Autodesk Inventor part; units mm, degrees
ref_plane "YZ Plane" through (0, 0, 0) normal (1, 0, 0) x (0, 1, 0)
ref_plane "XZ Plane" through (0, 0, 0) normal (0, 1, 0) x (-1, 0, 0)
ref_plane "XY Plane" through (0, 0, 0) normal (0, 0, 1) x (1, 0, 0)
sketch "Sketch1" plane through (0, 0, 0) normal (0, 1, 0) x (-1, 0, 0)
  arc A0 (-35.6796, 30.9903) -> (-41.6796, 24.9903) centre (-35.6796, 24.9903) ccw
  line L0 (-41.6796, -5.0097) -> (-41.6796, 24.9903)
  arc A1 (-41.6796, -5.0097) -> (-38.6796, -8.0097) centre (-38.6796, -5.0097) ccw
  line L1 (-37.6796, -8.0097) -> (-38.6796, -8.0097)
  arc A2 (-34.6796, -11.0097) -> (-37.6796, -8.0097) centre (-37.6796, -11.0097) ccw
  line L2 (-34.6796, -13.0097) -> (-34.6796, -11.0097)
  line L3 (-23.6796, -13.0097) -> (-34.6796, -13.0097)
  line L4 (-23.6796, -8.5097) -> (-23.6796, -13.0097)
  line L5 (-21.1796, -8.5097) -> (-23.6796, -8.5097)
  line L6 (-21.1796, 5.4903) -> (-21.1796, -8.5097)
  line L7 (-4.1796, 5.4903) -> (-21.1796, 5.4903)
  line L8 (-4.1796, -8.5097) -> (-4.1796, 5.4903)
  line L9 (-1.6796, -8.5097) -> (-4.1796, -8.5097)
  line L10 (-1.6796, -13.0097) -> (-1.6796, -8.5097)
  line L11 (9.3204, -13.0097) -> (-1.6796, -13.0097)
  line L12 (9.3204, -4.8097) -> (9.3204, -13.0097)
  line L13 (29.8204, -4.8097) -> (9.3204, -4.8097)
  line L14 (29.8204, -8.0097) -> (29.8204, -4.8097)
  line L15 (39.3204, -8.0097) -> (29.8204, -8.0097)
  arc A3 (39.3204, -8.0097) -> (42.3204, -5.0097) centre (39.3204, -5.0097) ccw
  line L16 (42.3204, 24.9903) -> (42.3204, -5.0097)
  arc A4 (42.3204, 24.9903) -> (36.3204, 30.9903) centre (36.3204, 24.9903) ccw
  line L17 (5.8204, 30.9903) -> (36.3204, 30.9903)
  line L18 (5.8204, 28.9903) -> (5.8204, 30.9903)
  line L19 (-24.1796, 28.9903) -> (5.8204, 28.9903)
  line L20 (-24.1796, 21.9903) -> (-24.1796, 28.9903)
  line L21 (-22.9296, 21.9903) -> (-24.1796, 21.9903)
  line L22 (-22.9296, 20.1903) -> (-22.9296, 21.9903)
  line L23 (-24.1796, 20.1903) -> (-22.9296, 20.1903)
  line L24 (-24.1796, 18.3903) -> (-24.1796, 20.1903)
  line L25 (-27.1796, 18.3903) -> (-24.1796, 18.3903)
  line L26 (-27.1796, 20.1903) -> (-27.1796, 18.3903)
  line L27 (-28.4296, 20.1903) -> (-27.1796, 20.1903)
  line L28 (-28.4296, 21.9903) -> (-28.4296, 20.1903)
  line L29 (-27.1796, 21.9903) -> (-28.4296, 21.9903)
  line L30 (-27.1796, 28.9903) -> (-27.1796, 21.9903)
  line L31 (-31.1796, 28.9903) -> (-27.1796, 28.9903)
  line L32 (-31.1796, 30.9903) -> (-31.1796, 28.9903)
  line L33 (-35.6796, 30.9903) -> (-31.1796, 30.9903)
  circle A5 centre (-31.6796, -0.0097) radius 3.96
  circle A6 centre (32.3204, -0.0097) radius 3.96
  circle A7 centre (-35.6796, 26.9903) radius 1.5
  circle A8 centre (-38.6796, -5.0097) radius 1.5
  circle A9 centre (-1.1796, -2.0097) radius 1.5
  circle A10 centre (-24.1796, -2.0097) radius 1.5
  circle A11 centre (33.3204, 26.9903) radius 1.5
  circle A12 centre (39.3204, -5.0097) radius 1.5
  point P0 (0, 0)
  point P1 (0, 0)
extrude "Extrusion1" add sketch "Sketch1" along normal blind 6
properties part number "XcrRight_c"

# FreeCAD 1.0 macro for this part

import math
import FreeCAD as App
import Part
import Sketcher
from FreeCAD import Vector

doc = App.newDocument("Part")
body = doc.addObject("PartDesign::Body", "Body")

sketch1 = doc.addObject("Sketcher::SketchObject", "Sketch")
body.addObject(sketch1)
sketch1.AttachmentSupport = (doc.XZ_Plane, [""])
sketch1.MapMode = "FlatFace"
sketch1.addGeometry([
    Part.LineSegment(Vector(31.2, 31, 0), Vector(35.7, 31, 0)),
    Part.ArcOfCircle(Part.Circle(Vector(35.7, 25, 0), Vector(0, 0, 1), 6), math.radians(0), math.radians(90)),
    Part.LineSegment(Vector(41.7, 25, 0), Vector(41.7, -5, 0)),
    Part.ArcOfCircle(Part.Circle(Vector(38.7, -5, 0), Vector(0, 0, 1), 3), math.radians(-90), math.radians(0)),
    Part.LineSegment(Vector(38.7, -8, 0), Vector(37.7, -8, 0)),
    Part.ArcOfCircle(Part.Circle(Vector(37.7, -11, 0), Vector(0, 0, 1), 3), math.radians(90), math.radians(180)),
    Part.LineSegment(Vector(34.7, -11, 0), Vector(34.7, -13, 0)),
    Part.LineSegment(Vector(34.7, -13, 0), Vector(23.7, -13, 0)),
    Part.LineSegment(Vector(23.7, -13, 0), Vector(23.7, -8.5, 0)),
    Part.LineSegment(Vector(23.7, -8.5, 0), Vector(21.2, -8.5, 0)),
    Part.LineSegment(Vector(21.2, -8.5, 0), Vector(21.2, 5.5, 0)),
    Part.LineSegment(Vector(21.2, 5.5, 0), Vector(4.2, 5.5, 0)),
    Part.LineSegment(Vector(4.2, 5.5, 0), Vector(4.2, -8.5, 0)),
    Part.LineSegment(Vector(4.2, -8.5, 0), Vector(1.7, -8.5, 0)),
    Part.LineSegment(Vector(1.7, -8.5, 0), Vector(1.7, -13, 0)),
    Part.LineSegment(Vector(1.7, -13, 0), Vector(-9.3, -13, 0)),
    Part.LineSegment(Vector(-9.3, -13, 0), Vector(-9.3, -4.8, 0)),
    Part.LineSegment(Vector(-9.3, -4.8, 0), Vector(-29.8, -4.8, 0)),
    Part.LineSegment(Vector(-29.8, -4.8, 0), Vector(-29.8, -8, 0)),
    Part.LineSegment(Vector(-29.8, -8, 0), Vector(-39.3, -8, 0)),
    Part.ArcOfCircle(Part.Circle(Vector(-39.3, -5, 0), Vector(0, 0, 1), 3), math.radians(180), math.radians(270)),
    Part.LineSegment(Vector(-42.3, -5, 0), Vector(-42.3, 25, 0)),
    Part.ArcOfCircle(Part.Circle(Vector(-36.3, 25, 0), Vector(0, 0, 1), 6), math.radians(90), math.radians(180)),
    Part.LineSegment(Vector(-36.3, 31, 0), Vector(-5.8, 31, 0)),
    Part.LineSegment(Vector(-5.8, 31, 0), Vector(-5.8, 29, 0)),
    Part.LineSegment(Vector(-5.8, 29, 0), Vector(24.2, 29, 0)),
    Part.LineSegment(Vector(24.2, 29, 0), Vector(24.2, 22, 0)),
    Part.LineSegment(Vector(24.2, 22, 0), Vector(22.9, 22, 0)),
    Part.LineSegment(Vector(22.9, 22, 0), Vector(22.9, 20.2, 0)),
    Part.LineSegment(Vector(22.9, 20.2, 0), Vector(24.2, 20.2, 0)),
    Part.LineSegment(Vector(24.2, 20.2, 0), Vector(24.2, 18.4, 0)),
    Part.LineSegment(Vector(24.2, 18.4, 0), Vector(27.2, 18.4, 0)),
    Part.LineSegment(Vector(27.2, 18.4, 0), Vector(27.2, 20.2, 0)),
    Part.LineSegment(Vector(27.2, 20.2, 0), Vector(28.4, 20.2, 0)),
    Part.LineSegment(Vector(28.4, 20.2, 0), Vector(28.4, 22, 0)),
    Part.LineSegment(Vector(28.4, 22, 0), Vector(27.2, 22, 0)),
    Part.LineSegment(Vector(27.2, 22, 0), Vector(27.2, 29, 0)),
    Part.LineSegment(Vector(27.2, 29, 0), Vector(31.2, 29, 0)),
    Part.LineSegment(Vector(31.2, 29, 0), Vector(31.2, 31, 0)),
    Part.Circle(Vector(38.7, -5, 0), Vector(0, 0, 1), 1.5),
    Part.Circle(Vector(24.2, -2, 0), Vector(0, 0, 1), 1.5),
    Part.Circle(Vector(1.2, -2, 0), Vector(0, 0, 1), 1.5),
    Part.Circle(Vector(31.7, 0, 0), Vector(0, 0, 1), 4),
    Part.Circle(Vector(-39.3, -5, 0), Vector(0, 0, 1), 1.5),
    Part.Circle(Vector(-32.3, 0, 0), Vector(0, 0, 1), 4),
    Part.Circle(Vector(35.7, 27, 0), Vector(0, 0, 1), 1.5),
    Part.Circle(Vector(-33.3, 27, 0), Vector(0, 0, 1), 1.5),
], False)
sketch1.addConstraint([
    Sketcher.Constraint("Tangent", 0, 2, 1, 2),
    Sketcher.Constraint("Tangent", 1, 1, 2, 1),
    Sketcher.Constraint("Tangent", 2, 2, 3, 2),
    Sketcher.Constraint("Tangent", 3, 1, 4, 1),
    Sketcher.Constraint("Tangent", 4, 2, 5, 1),
    Sketcher.Constraint("Tangent", 5, 2, 6, 1),
    Sketcher.Constraint("Coincident", 6, 2, 7, 1),
    Sketcher.Constraint("Coincident", 7, 2, 8, 1),
    Sketcher.Constraint("Coincident", 8, 2, 9, 1),
    Sketcher.Constraint("Coincident", 9, 2, 10, 1),
    Sketcher.Constraint("Coincident", 10, 2, 11, 1),
    Sketcher.Constraint("Coincident", 11, 2, 12, 1),
    Sketcher.Constraint("Coincident", 12, 2, 13, 1),
    Sketcher.Constraint("Coincident", 13, 2, 14, 1),
    Sketcher.Constraint("Coincident", 14, 2, 15, 1),
    Sketcher.Constraint("Coincident", 15, 2, 16, 1),
    Sketcher.Constraint("Coincident", 16, 2, 17, 1),
    Sketcher.Constraint("Coincident", 17, 2, 18, 1),
    Sketcher.Constraint("Coincident", 18, 2, 19, 1),
    Sketcher.Constraint("Tangent", 19, 2, 20, 2),
    Sketcher.Constraint("Tangent", 20, 1, 21, 1),
    Sketcher.Constraint("Tangent", 21, 2, 22, 2),
    Sketcher.Constraint("Tangent", 22, 1, 23, 1),
    Sketcher.Constraint("Coincident", 23, 2, 24, 1),
    Sketcher.Constraint("Coincident", 24, 2, 25, 1),
    Sketcher.Constraint("Coincident", 25, 2, 26, 1),
    Sketcher.Constraint("Coincident", 26, 2, 27, 1),
    Sketcher.Constraint("Coincident", 27, 2, 28, 1),
    Sketcher.Constraint("Coincident", 28, 2, 29, 1),
    Sketcher.Constraint("Coincident", 29, 2, 30, 1),
    Sketcher.Constraint("Coincident", 30, 2, 31, 1),
    Sketcher.Constraint("Coincident", 31, 2, 32, 1),
    Sketcher.Constraint("Coincident", 32, 2, 33, 1),
    Sketcher.Constraint("Coincident", 33, 2, 34, 1),
    Sketcher.Constraint("Coincident", 34, 2, 35, 1),
    Sketcher.Constraint("Coincident", 35, 2, 36, 1),
    Sketcher.Constraint("Coincident", 36, 2, 37, 1),
    Sketcher.Constraint("Coincident", 37, 2, 38, 1),
    Sketcher.Constraint("Coincident", 38, 2, 0, 1),
    Sketcher.Constraint("Horizontal", 0),
    Sketcher.Constraint("Vertical", 2),
    Sketcher.Constraint("Horizontal", 4),
    Sketcher.Constraint("Vertical", 6),
    Sketcher.Constraint("Horizontal", 7),
    Sketcher.Constraint("Vertical", 8),
    Sketcher.Constraint("Horizontal", 9),
    Sketcher.Constraint("Vertical", 10),
    Sketcher.Constraint("Horizontal", 11),
    Sketcher.Constraint("Vertical", 12),
    Sketcher.Constraint("Horizontal", 13),
    Sketcher.Constraint("Vertical", 14),
    Sketcher.Constraint("Horizontal", 15),
    Sketcher.Constraint("Vertical", 16),
    Sketcher.Constraint("Horizontal", 17),
    Sketcher.Constraint("Vertical", 18),
    Sketcher.Constraint("Horizontal", 19),
    Sketcher.Constraint("Vertical", 21),
    Sketcher.Constraint("Horizontal", 23),
    Sketcher.Constraint("Vertical", 24),
    Sketcher.Constraint("Horizontal", 25),
    Sketcher.Constraint("Vertical", 26),
    Sketcher.Constraint("Horizontal", 27),
    Sketcher.Constraint("Vertical", 28),
    Sketcher.Constraint("Horizontal", 29),
    Sketcher.Constraint("Vertical", 30),
    Sketcher.Constraint("Horizontal", 31),
    Sketcher.Constraint("Vertical", 32),
    Sketcher.Constraint("Horizontal", 33),
    Sketcher.Constraint("Vertical", 34),
    Sketcher.Constraint("Horizontal", 35),
    Sketcher.Constraint("Vertical", 36),
    Sketcher.Constraint("Horizontal", 37),
    Sketcher.Constraint("Vertical", 38),
    Sketcher.Constraint("Coincident", 39, 3, 3, 3),
    Sketcher.Constraint("Coincident", 43, 3, 20, 3),
    Sketcher.Constraint("Equal", 3, 5),
    Sketcher.Constraint("Equal", 5, 20),
    Sketcher.Constraint("Equal", 1, 22),
    Sketcher.Constraint("Equal", 39, 40),
    Sketcher.Constraint("Equal", 40, 41),
    Sketcher.Constraint("Equal", 41, 43),
    Sketcher.Constraint("Equal", 42, 44),
    Sketcher.Constraint("Equal", 43, 45),
    Sketcher.Constraint("Equal", 45, 46),
    Sketcher.Constraint("Horizontal", 3, 3, 20, 3),
    Sketcher.Constraint("Horizontal", 1, 3, 22, 3),
    Sketcher.Constraint("Horizontal", 40, 3, 41, 3),
    Sketcher.Constraint("Horizontal", 42, 3, 44, 3),
    Sketcher.Constraint("Horizontal", 45, 3, 46, 3),
    Sketcher.Constraint("Horizontal", 9, 2, 12, 2),
    Sketcher.Constraint("Horizontal", 7, 2, 14, 2),
    Sketcher.Constraint("Horizontal", 29, 2, 32, 2),
    Sketcher.Constraint("Horizontal", 27, 2, 34, 2),
    Sketcher.Constraint("Horizontal", 25, 2, 36, 2),
    Sketcher.Constraint("Vertical", 1, 3, 45, 3),
    Sketcher.Constraint("Vertical", 40, 3, 25, 2),
    Sketcher.Constraint("Vertical", 26, 2, 29, 2),
    Sketcher.Constraint("Vertical", 32, 2, 35, 2),
    Sketcher.Constraint("Equal", 9, 13),
    Sketcher.Constraint("Equal", 7, 15),
    Sketcher.Constraint("Equal", 29, 33),
    Sketcher.Constraint("Equal", 25, 2),
    Sketcher.Constraint("Equal", 0, 8),
    Sketcher.Constraint("Equal", 6, 24),
    Sketcher.Constraint("Equal", 28, 30),
    Sketcher.Constraint("Diameter", 39, 3.0),
    Sketcher.Constraint("Radius", 1, 6.0),
    Sketcher.Constraint("Radius", 3, 3.0),
    Sketcher.Constraint("Diameter", 42, 7.92),
    Sketcher.Constraint("DistanceX", 4, 2, 4, 1, 1.0),
    Sketcher.Constraint("DistanceX", 7, 2, 7, 1, 11.0),
    Sketcher.Constraint("DistanceX", 11, 2, 11, 1, 17.0),
    Sketcher.Constraint("DistanceX", 25, 1, 25, 2, 30.0),
    Sketcher.Constraint("DistanceX", 31, 1, 31, 2, 3.0),
    Sketcher.Constraint("DistanceX", 37, 1, 37, 2, 4.0),
    Sketcher.Constraint("DistanceY", 6, 2, 6, 1, 2.0),
    Sketcher.Constraint("DistanceY", 10, 1, 10, 2, 14.0),
    Sketcher.Constraint("DistanceY", 26, 2, 26, 1, 7.0),
    Sketcher.Constraint("DistanceX", 0, 1, 0, 2, 4.5),
    Sketcher.Constraint("DistanceX", 9, 2, 9, 1, 2.5),
    Sketcher.Constraint("DistanceX", 17, 2, 17, 1, 20.5),
    Sketcher.Constraint("DistanceX", 19, 2, 19, 1, 9.5),
    Sketcher.Constraint("DistanceY", 16, 1, 16, 2, 8.2),
    Sketcher.Constraint("DistanceY", 28, 2, 28, 1, 1.8),
    Sketcher.Constraint("DistanceY", 3, 3, 40, 3, 3.0),
    Sketcher.Constraint("DistanceX", 41, 3, 40, 3, 23.0),
    Sketcher.Constraint("DistanceY", 40, 3, 42, 3, 2.0),
    Sketcher.Constraint("DistanceX", 42, 3, 3, 3, 7.0),
    Sketcher.Constraint("DistanceX", 20, 3, 44, 3, 7.0),
    Sketcher.Constraint("DistanceY", 1, 3, 45, 3, 2.0),
    Sketcher.Constraint("DistanceX", 22, 3, 46, 3, 3.0),
    Sketcher.Constraint("DistanceX", 27, 2, 27, 1, 1.25),
    Sketcher.Constraint("DistanceX", -1, 1, 1, 3, 35.6796),
    Sketcher.Constraint("DistanceY", -1, 1, 1, 3, 24.9903),
])
pad1 = doc.addObject("PartDesign::Pad", "Pad")
body.addObject(pad1)
pad1.Profile = sketch1
pad1.Length = 6
pad1.Reversed = True

doc.recompute()
